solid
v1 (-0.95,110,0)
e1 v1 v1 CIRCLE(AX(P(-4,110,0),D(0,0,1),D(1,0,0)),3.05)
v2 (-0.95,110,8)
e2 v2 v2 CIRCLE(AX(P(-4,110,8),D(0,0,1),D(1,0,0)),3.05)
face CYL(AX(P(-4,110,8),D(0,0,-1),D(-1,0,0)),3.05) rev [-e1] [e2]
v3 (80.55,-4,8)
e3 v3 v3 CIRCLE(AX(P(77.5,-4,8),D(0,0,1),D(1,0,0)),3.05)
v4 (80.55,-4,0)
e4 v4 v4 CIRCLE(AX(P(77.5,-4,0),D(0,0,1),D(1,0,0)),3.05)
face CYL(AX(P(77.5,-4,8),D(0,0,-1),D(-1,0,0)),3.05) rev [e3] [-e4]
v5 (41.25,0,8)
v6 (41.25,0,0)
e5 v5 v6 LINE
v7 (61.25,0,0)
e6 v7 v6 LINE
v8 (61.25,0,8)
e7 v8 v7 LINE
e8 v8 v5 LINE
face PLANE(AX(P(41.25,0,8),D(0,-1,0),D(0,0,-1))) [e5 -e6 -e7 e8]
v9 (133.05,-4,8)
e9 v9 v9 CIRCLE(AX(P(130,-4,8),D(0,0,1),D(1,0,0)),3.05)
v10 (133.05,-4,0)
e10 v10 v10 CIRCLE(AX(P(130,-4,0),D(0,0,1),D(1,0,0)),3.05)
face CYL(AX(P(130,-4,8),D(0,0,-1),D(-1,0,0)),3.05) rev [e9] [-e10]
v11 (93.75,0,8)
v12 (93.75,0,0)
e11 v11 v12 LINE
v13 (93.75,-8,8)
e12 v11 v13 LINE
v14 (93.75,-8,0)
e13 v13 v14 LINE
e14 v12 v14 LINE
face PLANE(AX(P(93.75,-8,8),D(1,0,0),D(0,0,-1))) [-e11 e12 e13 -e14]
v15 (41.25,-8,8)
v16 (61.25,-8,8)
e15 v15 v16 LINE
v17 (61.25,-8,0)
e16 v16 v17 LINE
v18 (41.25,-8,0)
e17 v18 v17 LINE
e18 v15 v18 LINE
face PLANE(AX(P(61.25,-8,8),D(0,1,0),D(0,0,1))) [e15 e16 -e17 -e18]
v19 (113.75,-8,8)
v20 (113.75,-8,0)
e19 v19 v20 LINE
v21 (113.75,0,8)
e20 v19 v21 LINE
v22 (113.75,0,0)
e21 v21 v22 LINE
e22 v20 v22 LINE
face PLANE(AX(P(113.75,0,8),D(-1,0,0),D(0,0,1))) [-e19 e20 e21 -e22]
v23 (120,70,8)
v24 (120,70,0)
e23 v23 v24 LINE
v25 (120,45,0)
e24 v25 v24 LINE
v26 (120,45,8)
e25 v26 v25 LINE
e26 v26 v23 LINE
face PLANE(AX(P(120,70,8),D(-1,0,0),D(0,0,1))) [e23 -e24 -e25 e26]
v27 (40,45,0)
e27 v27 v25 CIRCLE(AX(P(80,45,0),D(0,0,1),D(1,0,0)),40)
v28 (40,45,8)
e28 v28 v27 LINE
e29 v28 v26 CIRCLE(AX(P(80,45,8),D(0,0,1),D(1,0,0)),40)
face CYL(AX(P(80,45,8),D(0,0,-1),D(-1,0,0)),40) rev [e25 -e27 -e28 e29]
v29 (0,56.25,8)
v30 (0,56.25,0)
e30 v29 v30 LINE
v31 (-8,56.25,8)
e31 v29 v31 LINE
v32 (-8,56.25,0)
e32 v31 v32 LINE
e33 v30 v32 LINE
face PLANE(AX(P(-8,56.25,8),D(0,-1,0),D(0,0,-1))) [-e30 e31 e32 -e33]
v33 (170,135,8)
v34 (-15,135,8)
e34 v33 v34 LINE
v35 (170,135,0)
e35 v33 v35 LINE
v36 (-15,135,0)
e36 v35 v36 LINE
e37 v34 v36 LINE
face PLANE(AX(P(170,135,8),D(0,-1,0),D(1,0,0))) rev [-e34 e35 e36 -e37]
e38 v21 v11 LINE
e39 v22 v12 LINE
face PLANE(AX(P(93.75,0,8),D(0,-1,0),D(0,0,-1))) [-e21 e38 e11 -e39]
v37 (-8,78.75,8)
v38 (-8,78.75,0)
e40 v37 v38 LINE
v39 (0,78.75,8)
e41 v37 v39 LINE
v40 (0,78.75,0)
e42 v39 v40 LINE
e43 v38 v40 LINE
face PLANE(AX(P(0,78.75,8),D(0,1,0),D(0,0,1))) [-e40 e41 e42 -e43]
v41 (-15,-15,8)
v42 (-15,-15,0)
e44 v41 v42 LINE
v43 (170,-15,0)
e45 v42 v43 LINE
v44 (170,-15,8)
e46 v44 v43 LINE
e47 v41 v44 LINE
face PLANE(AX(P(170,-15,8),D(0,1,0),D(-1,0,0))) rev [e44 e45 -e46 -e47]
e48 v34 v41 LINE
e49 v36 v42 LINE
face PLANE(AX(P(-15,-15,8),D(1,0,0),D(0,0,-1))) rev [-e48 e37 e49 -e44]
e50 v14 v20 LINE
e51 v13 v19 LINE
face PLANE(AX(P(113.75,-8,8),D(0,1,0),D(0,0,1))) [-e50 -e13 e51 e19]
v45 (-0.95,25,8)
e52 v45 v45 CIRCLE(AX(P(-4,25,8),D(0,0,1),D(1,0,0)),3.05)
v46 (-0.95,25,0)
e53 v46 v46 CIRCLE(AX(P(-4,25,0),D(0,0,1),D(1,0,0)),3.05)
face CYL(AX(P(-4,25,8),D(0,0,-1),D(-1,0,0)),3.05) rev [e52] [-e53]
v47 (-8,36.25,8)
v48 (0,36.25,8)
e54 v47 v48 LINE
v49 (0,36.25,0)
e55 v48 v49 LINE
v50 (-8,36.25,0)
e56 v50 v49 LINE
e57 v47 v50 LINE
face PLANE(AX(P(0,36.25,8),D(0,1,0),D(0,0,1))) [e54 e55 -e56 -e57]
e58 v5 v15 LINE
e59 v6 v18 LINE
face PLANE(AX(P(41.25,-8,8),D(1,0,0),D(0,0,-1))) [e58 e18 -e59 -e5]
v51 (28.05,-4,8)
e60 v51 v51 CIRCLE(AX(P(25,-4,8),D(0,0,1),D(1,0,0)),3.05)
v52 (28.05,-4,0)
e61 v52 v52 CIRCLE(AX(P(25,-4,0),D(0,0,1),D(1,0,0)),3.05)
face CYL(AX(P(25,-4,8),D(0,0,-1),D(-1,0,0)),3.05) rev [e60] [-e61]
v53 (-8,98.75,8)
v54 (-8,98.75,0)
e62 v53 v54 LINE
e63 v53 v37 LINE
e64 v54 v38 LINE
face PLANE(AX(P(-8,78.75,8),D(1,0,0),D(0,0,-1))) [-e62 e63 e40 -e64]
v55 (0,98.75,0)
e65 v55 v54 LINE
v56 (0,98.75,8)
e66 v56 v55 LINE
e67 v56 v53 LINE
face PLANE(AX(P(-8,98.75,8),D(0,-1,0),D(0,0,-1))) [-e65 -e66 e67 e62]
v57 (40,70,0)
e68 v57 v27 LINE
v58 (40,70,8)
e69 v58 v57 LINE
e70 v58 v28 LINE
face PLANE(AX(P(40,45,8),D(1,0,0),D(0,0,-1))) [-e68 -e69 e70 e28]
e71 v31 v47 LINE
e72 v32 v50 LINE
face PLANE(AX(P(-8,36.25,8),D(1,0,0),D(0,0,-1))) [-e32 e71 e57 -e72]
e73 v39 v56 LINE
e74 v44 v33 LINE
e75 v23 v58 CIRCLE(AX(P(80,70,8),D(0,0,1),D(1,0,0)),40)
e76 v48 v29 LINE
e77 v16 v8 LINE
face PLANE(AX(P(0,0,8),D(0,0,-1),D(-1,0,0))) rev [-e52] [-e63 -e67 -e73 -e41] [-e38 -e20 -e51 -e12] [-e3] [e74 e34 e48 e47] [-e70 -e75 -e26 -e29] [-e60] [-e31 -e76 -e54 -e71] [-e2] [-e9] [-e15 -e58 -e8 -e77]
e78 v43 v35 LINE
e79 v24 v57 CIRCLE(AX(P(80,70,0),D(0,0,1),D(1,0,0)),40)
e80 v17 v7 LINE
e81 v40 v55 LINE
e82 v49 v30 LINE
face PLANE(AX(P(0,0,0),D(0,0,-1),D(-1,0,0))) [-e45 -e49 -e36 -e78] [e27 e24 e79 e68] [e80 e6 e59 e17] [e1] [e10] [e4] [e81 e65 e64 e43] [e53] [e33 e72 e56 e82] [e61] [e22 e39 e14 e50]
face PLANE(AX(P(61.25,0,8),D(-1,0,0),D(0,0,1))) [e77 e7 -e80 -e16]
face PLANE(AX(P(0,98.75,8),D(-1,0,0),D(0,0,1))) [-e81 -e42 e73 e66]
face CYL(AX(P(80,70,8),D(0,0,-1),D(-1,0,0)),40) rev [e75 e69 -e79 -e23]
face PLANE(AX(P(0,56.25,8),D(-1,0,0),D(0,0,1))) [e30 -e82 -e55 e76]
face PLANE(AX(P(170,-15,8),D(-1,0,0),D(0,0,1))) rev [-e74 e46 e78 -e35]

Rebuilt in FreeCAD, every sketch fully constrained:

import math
import FreeCAD as App
import Part
import Sketcher


def add_polygon(sketch, points):
    """Adds a closed chain of lines whose ends are joined by coincident constraints."""
    first, n = sketch.GeometryCount, len(points)
    for a, b in zip(points, points[1:] + points[:1]):
        sketch.addGeometry(Part.LineSegment(App.Vector(*a, 0), App.Vector(*b, 0)), False)
    for i in range(n):
        sketch.addConstraint(Sketcher.Constraint("Coincident", first + i, 2, first + (i + 1) % n, 1))

doc = App.newDocument("Part")
body = doc.addObject("PartDesign::Body", "Body")

# Sketch on XY plane
sketch1 = body.newObject("Sketcher::SketchObject", "Sketch")
sketch1.AttachmentSupport = (doc.getObject("XY_Plane"), [""])
sketch1.MapMode = "FlatFace"
add_polygon(sketch1, [(-15, 135), (-15, -15), (170, -15), (170, 135)])  # lines 0-3
sketch1.addGeometry(Part.Circle(App.Vector(25, -4, 0), App.Vector(0, 0, 1), 3.05), False)  # 4
add_polygon(sketch1, [(61.25, -8), (41.25, -8), (41.25, 0), (61.25, 0)])  # lines 5-8
sketch1.addGeometry(Part.Circle(App.Vector(-4, 25, 0), App.Vector(0, 0, 1), 3.05), False)  # 9
add_polygon(sketch1, [(0, 36.25), (-8, 36.25), (-8, 56.25), (0, 56.25)])  # lines 10-13
sketch1.addGeometry(Part.Circle(App.Vector(77.5, -4, 0), App.Vector(0, 0, 1), 3.05), False)  # 14
add_polygon(sketch1, [(113.75, -8), (93.75, -8), (93.75, 0), (113.75, 0)])  # lines 15-18
sketch1.addGeometry(Part.Circle(App.Vector(130, -4, 0), App.Vector(0, 0, 1), 3.05), False)  # 19
add_polygon(sketch1, [(0, 78.75), (-8, 78.75), (-8, 98.75), (0, 98.75)])  # lines 20-23
sketch1.addGeometry(Part.Circle(App.Vector(-4, 110, 0), App.Vector(0, 0, 1), 3.05), False)  # 24
sketch1.addGeometry(Part.ArcOfCircle(Part.Circle(App.Vector(80, 45, 0), App.Vector(0, 0, 1), 40), math.radians(180), math.radians(360)), False)  # 25
sketch1.addGeometry(Part.LineSegment(App.Vector(40, 45, 0), App.Vector(40, 70, 0)), False)  # 26
sketch1.addGeometry(Part.ArcOfCircle(Part.Circle(App.Vector(80, 70, 0), App.Vector(0, 0, 1), 40), math.radians(0), math.radians(180)), False)  # 27
sketch1.addGeometry(Part.LineSegment(App.Vector(120, 70, 0), App.Vector(120, 45, 0)), False)  # 28
sketch1.addConstraint([
    Sketcher.Constraint("Tangent", 25, 1, 26, 1),
    Sketcher.Constraint("Tangent", 26, 2, 27, 2),
    Sketcher.Constraint("Tangent", 27, 1, 28, 1),
    Sketcher.Constraint("Tangent", 28, 2, 25, 2),
    Sketcher.Constraint("Vertical", 0),
    Sketcher.Constraint("Horizontal", 1),
    Sketcher.Constraint("Vertical", 2),
    Sketcher.Constraint("Horizontal", 3),
    Sketcher.Constraint("Horizontal", 5),
    Sketcher.Constraint("Vertical", 6),
    Sketcher.Constraint("Horizontal", 7),
    Sketcher.Constraint("Vertical", 8),
    Sketcher.Constraint("Horizontal", 10),
    Sketcher.Constraint("Vertical", 11),
    Sketcher.Constraint("Horizontal", 12),
    Sketcher.Constraint("Vertical", 13),
    Sketcher.Constraint("Horizontal", 15),
    Sketcher.Constraint("Vertical", 16),
    Sketcher.Constraint("Horizontal", 17),
    Sketcher.Constraint("Vertical", 18),
    Sketcher.Constraint("Horizontal", 20),
    Sketcher.Constraint("Vertical", 21),
    Sketcher.Constraint("Horizontal", 22),
    Sketcher.Constraint("Vertical", 23),
    Sketcher.Constraint("Vertical", 26),
    Sketcher.Constraint("Vertical", 28),
    Sketcher.Constraint("Equal", 4, 9),
    Sketcher.Constraint("Equal", 9, 14),
    Sketcher.Constraint("Equal", 14, 19),
    Sketcher.Constraint("Equal", 19, 24),
    Sketcher.Constraint("PointOnObject", 6, 2, -1),
    Sketcher.Constraint("PointOnObject", 12, 2, -2),
    Sketcher.Constraint("PointOnObject", 16, 2, -1),
    Sketcher.Constraint("PointOnObject", 22, 2, -2),
    Sketcher.Constraint("Horizontal", 4, 3, 14, 3),
    Sketcher.Constraint("Horizontal", 14, 3, 19, 3),
    Sketcher.Constraint("Horizontal", 8, 2, 15, 2),
    Sketcher.Constraint("Vertical", 9, 3, 24, 3),
    Sketcher.Constraint("Vertical", 11, 2, 20, 2),
    Sketcher.Constraint("Equal", 7, 15),
    Sketcher.Constraint("Equal", 22, 6),
    Sketcher.Constraint("Equal", 17, 11),
    Sketcher.Constraint("Equal", 13, 21),
    Sketcher.Constraint("Radius", 25, 40.0),
    Sketcher.Constraint("Diameter", 4, 6.1),
    Sketcher.Constraint("DistanceX", 1, 1, 1, 2, 185.0),
    Sketcher.Constraint("DistanceX", 5, 2, 5, 1, 20.0),
    Sketcher.Constraint("DistanceX", 10, 2, 10, 1, 8.0),
    Sketcher.Constraint("DistanceY", 0, 2, 0, 1, 150.0),
    Sketcher.Constraint("DistanceY", 26, 1, 26, 2, 25.0),
    Sketcher.Constraint("DistanceX", -1, 1, 4, 3, 25.0),
    Sketcher.Constraint("DistanceY", 4, 3, -1, 1, 4.0),
    Sketcher.Constraint("DistanceX", 9, 3, -1, 1, 4.0),
    Sketcher.Constraint("DistanceY", -1, 1, 9, 3, 25.0),
    Sketcher.Constraint("DistanceX", -1, 1, 19, 3, 130.0),
    Sketcher.Constraint("DistanceY", -1, 1, 24, 3, 110.0),
    Sketcher.Constraint("DistanceX", -1, 1, 25, 3, 80.0),
    Sketcher.Constraint("DistanceY", -1, 1, 25, 3, 45.0),
    Sketcher.Constraint("DistanceX", 0, 2, -1, 1, 15.0),
    Sketcher.Constraint("DistanceY", 0, 2, -1, 1, 15.0),
    Sketcher.Constraint("DistanceX", -1, 1, 14, 3, 77.5),
    Sketcher.Constraint("DistanceX", 8, 2, 15, 2, 32.5),
    Sketcher.Constraint("DistanceY", 11, 2, 20, 2, 22.5),
    Sketcher.Constraint("DistanceX", -1, 1, 5, 2, 41.25),
    Sketcher.Constraint("DistanceY", -1, 1, 10, 2, 36.25),
])
pad1 = body.newObject("PartDesign::Pad", "Pad")
pad1.Profile = sketch1
pad1.Length = 8

doc.recompute()
